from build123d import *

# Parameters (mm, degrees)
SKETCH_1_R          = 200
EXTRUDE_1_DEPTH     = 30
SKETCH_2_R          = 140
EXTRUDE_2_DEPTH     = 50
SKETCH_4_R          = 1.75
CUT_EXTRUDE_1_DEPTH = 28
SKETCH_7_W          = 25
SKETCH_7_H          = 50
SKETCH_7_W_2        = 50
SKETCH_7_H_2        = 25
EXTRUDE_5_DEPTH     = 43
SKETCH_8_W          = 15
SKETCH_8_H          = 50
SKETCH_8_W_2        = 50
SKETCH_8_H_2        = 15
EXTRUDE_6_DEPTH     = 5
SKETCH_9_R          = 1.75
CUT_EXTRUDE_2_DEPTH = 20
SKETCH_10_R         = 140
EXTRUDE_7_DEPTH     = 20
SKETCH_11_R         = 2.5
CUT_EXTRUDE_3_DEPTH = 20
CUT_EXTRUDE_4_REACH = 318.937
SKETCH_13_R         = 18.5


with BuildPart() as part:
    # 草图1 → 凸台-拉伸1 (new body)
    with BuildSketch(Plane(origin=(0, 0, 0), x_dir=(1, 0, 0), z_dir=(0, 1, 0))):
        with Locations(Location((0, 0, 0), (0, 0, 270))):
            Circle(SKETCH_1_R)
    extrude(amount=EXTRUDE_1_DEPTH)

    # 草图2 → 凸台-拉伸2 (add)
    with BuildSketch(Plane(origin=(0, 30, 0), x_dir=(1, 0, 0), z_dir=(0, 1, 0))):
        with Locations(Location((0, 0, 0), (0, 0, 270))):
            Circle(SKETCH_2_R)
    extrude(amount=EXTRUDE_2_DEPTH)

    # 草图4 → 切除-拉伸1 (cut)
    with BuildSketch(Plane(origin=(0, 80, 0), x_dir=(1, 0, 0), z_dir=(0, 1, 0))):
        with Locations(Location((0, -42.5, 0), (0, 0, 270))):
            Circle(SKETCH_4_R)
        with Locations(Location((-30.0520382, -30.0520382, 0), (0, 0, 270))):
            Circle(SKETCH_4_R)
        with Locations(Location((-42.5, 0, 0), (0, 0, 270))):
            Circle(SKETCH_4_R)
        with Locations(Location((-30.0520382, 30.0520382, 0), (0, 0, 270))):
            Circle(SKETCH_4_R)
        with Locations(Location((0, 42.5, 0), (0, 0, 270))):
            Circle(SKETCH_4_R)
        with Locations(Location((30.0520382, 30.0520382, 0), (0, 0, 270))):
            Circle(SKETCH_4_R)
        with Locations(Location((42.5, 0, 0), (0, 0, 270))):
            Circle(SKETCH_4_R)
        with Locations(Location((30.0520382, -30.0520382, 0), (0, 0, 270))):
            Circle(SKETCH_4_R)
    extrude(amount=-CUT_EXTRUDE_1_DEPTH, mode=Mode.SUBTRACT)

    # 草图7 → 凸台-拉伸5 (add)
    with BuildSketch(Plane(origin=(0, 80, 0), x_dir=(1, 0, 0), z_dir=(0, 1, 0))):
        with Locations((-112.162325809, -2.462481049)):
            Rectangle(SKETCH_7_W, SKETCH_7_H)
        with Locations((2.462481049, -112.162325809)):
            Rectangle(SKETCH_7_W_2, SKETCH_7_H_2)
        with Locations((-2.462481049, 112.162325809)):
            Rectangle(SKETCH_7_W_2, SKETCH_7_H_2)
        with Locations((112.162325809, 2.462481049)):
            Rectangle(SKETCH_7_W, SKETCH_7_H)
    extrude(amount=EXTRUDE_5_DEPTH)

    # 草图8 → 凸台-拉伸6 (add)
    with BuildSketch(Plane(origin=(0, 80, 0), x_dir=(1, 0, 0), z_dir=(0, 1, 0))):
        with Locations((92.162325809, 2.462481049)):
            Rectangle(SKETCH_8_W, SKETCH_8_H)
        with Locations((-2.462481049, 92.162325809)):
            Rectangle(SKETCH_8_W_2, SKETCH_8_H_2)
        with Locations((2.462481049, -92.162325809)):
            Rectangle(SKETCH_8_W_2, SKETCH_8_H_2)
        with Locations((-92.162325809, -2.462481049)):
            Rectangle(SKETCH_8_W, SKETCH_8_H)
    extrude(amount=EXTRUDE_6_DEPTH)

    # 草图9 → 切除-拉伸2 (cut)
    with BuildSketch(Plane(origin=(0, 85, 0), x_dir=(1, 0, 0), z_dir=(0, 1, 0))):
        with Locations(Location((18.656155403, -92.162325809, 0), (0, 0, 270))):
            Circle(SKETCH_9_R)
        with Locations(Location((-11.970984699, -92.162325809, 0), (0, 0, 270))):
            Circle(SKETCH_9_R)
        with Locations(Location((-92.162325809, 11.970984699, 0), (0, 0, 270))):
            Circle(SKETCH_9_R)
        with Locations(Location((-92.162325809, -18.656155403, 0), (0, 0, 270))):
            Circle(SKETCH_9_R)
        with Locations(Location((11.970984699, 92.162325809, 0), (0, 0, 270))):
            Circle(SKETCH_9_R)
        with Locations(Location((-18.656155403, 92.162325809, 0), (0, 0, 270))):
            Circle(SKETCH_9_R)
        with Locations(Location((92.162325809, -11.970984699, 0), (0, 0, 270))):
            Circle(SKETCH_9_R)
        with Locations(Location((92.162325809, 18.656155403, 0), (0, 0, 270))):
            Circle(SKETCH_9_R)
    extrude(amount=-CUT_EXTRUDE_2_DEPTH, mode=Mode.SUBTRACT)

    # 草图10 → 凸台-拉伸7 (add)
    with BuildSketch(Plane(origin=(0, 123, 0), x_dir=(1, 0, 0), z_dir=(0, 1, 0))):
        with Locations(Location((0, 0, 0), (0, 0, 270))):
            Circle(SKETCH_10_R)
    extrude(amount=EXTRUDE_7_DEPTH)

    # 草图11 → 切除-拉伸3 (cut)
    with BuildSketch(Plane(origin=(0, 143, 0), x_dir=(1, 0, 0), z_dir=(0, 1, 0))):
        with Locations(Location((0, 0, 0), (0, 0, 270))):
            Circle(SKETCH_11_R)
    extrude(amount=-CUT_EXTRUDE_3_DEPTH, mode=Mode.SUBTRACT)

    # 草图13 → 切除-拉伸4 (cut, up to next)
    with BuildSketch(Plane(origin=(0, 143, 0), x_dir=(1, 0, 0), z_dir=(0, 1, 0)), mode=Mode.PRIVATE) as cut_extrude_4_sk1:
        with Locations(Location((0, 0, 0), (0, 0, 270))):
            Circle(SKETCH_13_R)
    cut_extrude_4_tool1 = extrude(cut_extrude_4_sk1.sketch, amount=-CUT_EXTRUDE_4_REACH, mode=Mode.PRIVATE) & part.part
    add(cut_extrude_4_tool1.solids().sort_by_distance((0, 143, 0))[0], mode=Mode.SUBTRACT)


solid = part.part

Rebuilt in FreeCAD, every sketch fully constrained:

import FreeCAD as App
import Part
import Sketcher

doc = App.newDocument("Part")
body = doc.addObject("PartDesign::Body", "Body")

sketch1 = body.newObject("Sketcher::SketchObject", "Sketch")
sketch1.AttachmentSupport = (doc.getObject("XZ_Plane"), [""])
sketch1.MapMode = "FlatFace"
sketch1.addGeometry(Part.Circle(App.Vector(0, 0, 0), App.Vector(0, 0, 1), 200), False)
sketch1.addConstraint([
    Sketcher.Constraint("Coincident", 0, 3, -1, 1),
    Sketcher.Constraint("Diameter", 0, 400.0),
])
pad1 = body.newObject("PartDesign::Pad", "Pad")
pad1.Profile = sketch1
pad1.Length = 30
pad1.Reversed = True

sketch2 = body.newObject("Sketcher::SketchObject", "Sketch001")
sketch2.AttachmentSupport = (doc.getObject("XZ_Plane"), [""])
sketch2.MapMode = "FlatFace"
sketch2.AttachmentOffset = App.Placement(App.Vector(0, 0, -30), App.Rotation())
sketch2.addGeometry(Part.Circle(App.Vector(0, 0, 0), App.Vector(0, 0, 1), 140), False)
sketch2.addConstraint([
    Sketcher.Constraint("Coincident", 0, 3, -1, 1),
    Sketcher.Constraint("Diameter", 0, 280.0),
])
pad2 = body.newObject("PartDesign::Pad", "Pad001")
pad2.Profile = sketch2
pad2.Length = 50
pad2.Reversed = True

sketch3 = body.newObject("Sketcher::SketchObject", "Sketch002")
sketch3.AttachmentSupport = (doc.getObject("XZ_Plane"), [""])
sketch3.MapMode = "FlatFace"
sketch3.AttachmentOffset = App.Placement(App.Vector(0, 0, -80), App.Rotation())
sketch3.addGeometry([
    Part.Circle(App.Vector(0, 42.5, 0), App.Vector(0, 0, 1), 1.8),
    Part.Circle(App.Vector(-30.1, 30.1, 0), App.Vector(0, 0, 1), 1.8),
    Part.Circle(App.Vector(-42.5, 0, 0), App.Vector(0, 0, 1), 1.8),
    Part.Circle(App.Vector(-30.1, -30.1, 0), App.Vector(0, 0, 1), 1.8),
    Part.Circle(App.Vector(0, -42.5, 0), App.Vector(0, 0, 1), 1.8),
    Part.Circle(App.Vector(30.1, -30.1, 0), App.Vector(0, 0, 1), 1.8),
    Part.Circle(App.Vector(42.5, 0, 0), App.Vector(0, 0, 1), 1.8),
    Part.Circle(App.Vector(30.1, 30.1, 0), App.Vector(0, 0, 1), 1.8),
], False)
sketch3.addConstraint([
    Sketcher.Constraint("Equal", 0, 1),
    Sketcher.Constraint("Equal", 1, 2),
    Sketcher.Constraint("Equal", 2, 3),
    Sketcher.Constraint("Equal", 3, 4),
    Sketcher.Constraint("Equal", 4, 5),
    Sketcher.Constraint("Equal", 5, 6),
    Sketcher.Constraint("Equal", 6, 7),
    Sketcher.Constraint("Symmetric", 0, 3, 4, 3, -1, 1),
    Sketcher.Constraint("Symmetric", 1, 3, 5, 3, -1, 1),
    Sketcher.Constraint("Symmetric", 2, 3, 6, 3, -1, 1),
    Sketcher.Constraint("Symmetric", 3, 3, 7, 3, -1, 1),
    Sketcher.Constraint("Symmetric", 3, 3, 5, 3, -2),
    Sketcher.Constraint("PointOnObject", 0, 3, -2),
    Sketcher.Constraint("PointOnObject", 2, 3, -1),
    Sketcher.Constraint("Diameter", 0, 3.5),
    Sketcher.Constraint("DistanceY", 4, 3, 0, 3, 85.0),
    Sketcher.Constraint("DistanceX", 2, 3, -1, 1, 42.5),
    Sketcher.Constraint("DistanceX", 1, 3, -1, 1, 30.052038),
    Sketcher.Constraint("DistanceY", -1, 1, 1, 3, 30.052038),
])
pocket1 = body.newObject("PartDesign::Pocket", "Pocket")
pocket1.Profile = sketch3
pocket1.Length = 28
pocket1.Reversed = True

sketch4 = body.newObject("Sketcher::SketchObject", "Sketch003")
sketch4.AttachmentSupport = (doc.getObject("XZ_Plane"), [""])
sketch4.MapMode = "FlatFace"
sketch4.AttachmentOffset = App.Placement(App.Vector(0, 0, -80), App.Rotation())
sketch4.addGeometry([
    Part.LineSegment(App.Vector(-125, -23, 0), App.Vector(-125, 27, 0)),
    Part.LineSegment(App.Vector(-125, 27, 0), App.Vector(-100, 27, 0)),
    Part.LineSegment(App.Vector(-100, 27, 0), App.Vector(-100, -23, 0)),
    Part.LineSegment(App.Vector(-100, -23, 0), App.Vector(-125, -23, 0)),
    Part.LineSegment(App.Vector(-23, 100, 0), App.Vector(-23, 125, 0)),
    Part.LineSegment(App.Vector(-23, 125, 0), App.Vector(27, 125, 0)),
    Part.LineSegment(App.Vector(27, 125, 0), App.Vector(27, 100, 0)),
    Part.LineSegment(App.Vector(27, 100, 0), App.Vector(-23, 100, 0)),
    Part.LineSegment(App.Vector(-27, -125, 0), App.Vector(-27, -100, 0)),
    Part.LineSegment(App.Vector(-27, -100, 0), App.Vector(23, -100, 0)),
    Part.LineSegment(App.Vector(23, -100, 0), App.Vector(23, -125, 0)),
    Part.LineSegment(App.Vector(23, -125, 0), App.Vector(-27, -125, 0)),
    Part.LineSegment(App.Vector(100, -27, 0), App.Vector(100, 23, 0)),
    Part.LineSegment(App.Vector(100, 23, 0), App.Vector(125, 23, 0)),
    Part.LineSegment(App.Vector(125, 23, 0), App.Vector(125, -27, 0)),
    Part.LineSegment(App.Vector(125, -27, 0), App.Vector(100, -27, 0)),
], False)
sketch4.addConstraint([
    Sketcher.Constraint("Coincident", 0, 2, 1, 1),
    Sketcher.Constraint("Coincident", 1, 2, 2, 1),
    Sketcher.Constraint("Coincident", 2, 2, 3, 1),
    Sketcher.Constraint("Coincident", 3, 2, 0, 1),
    Sketcher.Constraint("Coincident", 4, 2, 5, 1),
    Sketcher.Constraint("Coincident", 5, 2, 6, 1),
    Sketcher.Constraint("Coincident", 6, 2, 7, 1),
    Sketcher.Constraint("Coincident", 7, 2, 4, 1),
    Sketcher.Constraint("Coincident", 8, 2, 9, 1),
    Sketcher.Constraint("Coincident", 9, 2, 10, 1),
    Sketcher.Constraint("Coincident", 10, 2, 11, 1),
    Sketcher.Constraint("Coincident", 11, 2, 8, 1),
    Sketcher.Constraint("Coincident", 12, 2, 13, 1),
    Sketcher.Constraint("Coincident", 13, 2, 14, 1),
    Sketcher.Constraint("Coincident", 14, 2, 15, 1),
    Sketcher.Constraint("Coincident", 15, 2, 12, 1),
    Sketcher.Constraint("Vertical", 0),
    Sketcher.Constraint("Horizontal", 1),
    Sketcher.Constraint("Vertical", 2),
    Sketcher.Constraint("Horizontal", 3),
    Sketcher.Constraint("Vertical", 4),
    Sketcher.Constraint("Horizontal", 5),
    Sketcher.Constraint("Vertical", 6),
    Sketcher.Constraint("Horizontal", 7),
    Sketcher.Constraint("Vertical", 8),
    Sketcher.Constraint("Horizontal", 9),
    Sketcher.Constraint("Vertical", 10),
    Sketcher.Constraint("Horizontal", 11),
    Sketcher.Constraint("Vertical", 12),
    Sketcher.Constraint("Horizontal", 13),
    Sketcher.Constraint("Vertical", 14),
    Sketcher.Constraint("Horizontal", 15),
    Sketcher.Constraint("Symmetric", 6, 2, 8, 2, -1, 1),
    Sketcher.Constraint("Symmetric", 4, 2, 10, 2, -1, 1),
    Sketcher.Constraint("Symmetric", 2, 2, 12, 2, -1, 1),
    Sketcher.Constraint("Symmetric", 0, 2, 14, 2, -1, 1),
    Sketcher.Constraint("Equal", 11, 0),
    Sketcher.Constraint("Equal", 15, 4),
    Sketcher.Constraint("DistanceX", 1, 1, 1, 2, 25.0),
    Sketcher.Constraint("DistanceX", 5, 1, 5, 2, 50.0),
    Sketcher.Constraint("DistanceY", -1, 1, 0, 2, 27.462481),
    Sketcher.Constraint("DistanceX", 4, 2, -1, 1, 22.537519),
    Sketcher.Constraint("DistanceY", 8, 2, 7, 2, 199.324652),
    Sketcher.Constraint("DistanceX", 0, 2, -1, 1, 124.662326),
])
pad3 = body.newObject("PartDesign::Pad", "Pad002")
pad3.Profile = sketch4
pad3.Length = 43
pad3.Reversed = True

sketch5 = body.newObject("Sketcher::SketchObject", "Sketch004")
sketch5.AttachmentSupport = (doc.getObject("XZ_Plane"), [""])
sketch5.MapMode = "FlatFace"
sketch5.AttachmentOffset = App.Placement(App.Vector(0, 0, -80), App.Rotation())
sketch5.addGeometry([
    Part.LineSegment(App.Vector(85, -27, 0), App.Vector(85, 23, 0)),
    Part.LineSegment(App.Vector(85, 23, 0), App.Vector(100, 23, 0)),
    Part.LineSegment(App.Vector(100, 23, 0), App.Vector(100, -27, 0)),
    Part.LineSegment(App.Vector(100, -27, 0), App.Vector(85, -27, 0)),
    Part.LineSegment(App.Vector(-27, -100, 0), App.Vector(-27, -85, 0)),
    Part.LineSegment(App.Vector(-27, -85, 0), App.Vector(23, -85, 0)),
    Part.LineSegment(App.Vector(23, -85, 0), App.Vector(23, -100, 0)),
    Part.LineSegment(App.Vector(23, -100, 0), App.Vector(-27, -100, 0)),
    Part.LineSegment(App.Vector(-23, 85, 0), App.Vector(-23, 100, 0)),
    Part.LineSegment(App.Vector(-23, 100, 0), App.Vector(27, 100, 0)),
    Part.LineSegment(App.Vector(27, 100, 0), App.Vector(27, 85, 0)),
    Part.LineSegment(App.Vector(27, 85, 0), App.Vector(-23, 85, 0)),
    Part.LineSegment(App.Vector(-100, -23, 0), App.Vector(-100, 27, 0)),
    Part.LineSegment(App.Vector(-100, 27, 0), App.Vector(-85, 27, 0)),
    Part.LineSegment(App.Vector(-85, 27, 0), App.Vector(-85, -23, 0)),
    Part.LineSegment(App.Vector(-85, -23, 0), App.Vector(-100, -23, 0)),
], False)
sketch5.addConstraint([
    Sketcher.Constraint("Coincident", 0, 2, 1, 1),
    Sketcher.Constraint("Coincident", 1, 2, 2, 1),
    Sketcher.Constraint("Coincident", 2, 2, 3, 1),
    Sketcher.Constraint("Coincident", 3, 2, 0, 1),
    Sketcher.Constraint("Coincident", 4, 2, 5, 1),
    Sketcher.Constraint("Coincident", 5, 2, 6, 1),
    Sketcher.Constraint("Coincident", 6, 2, 7, 1),
    Sketcher.Constraint("Coincident", 7, 2, 4, 1),
    Sketcher.Constraint("Coincident", 8, 2, 9, 1),
    Sketcher.Constraint("Coincident", 9, 2, 10, 1),
    Sketcher.Constraint("Coincident", 10, 2, 11, 1),
    Sketcher.Constraint("Coincident", 11, 2, 8, 1),
    Sketcher.Constraint("Coincident", 12, 2, 13, 1),
    Sketcher.Constraint("Coincident", 13, 2, 14, 1),
    Sketcher.Constraint("Coincident", 14, 2, 15, 1),
    Sketcher.Constraint("Coincident", 15, 2, 12, 1),
    Sketcher.Constraint("Vertical", 0),
    Sketcher.Constraint("Horizontal", 1),
    Sketcher.Constraint("Vertical", 2),
    Sketcher.Constraint("Horizontal", 3),
    Sketcher.Constraint("Vertical", 4),
    Sketcher.Constraint("Horizontal", 5),
    Sketcher.Constraint("Vertical", 6),
    Sketcher.Constraint("Horizontal", 7),
    Sketcher.Constraint("Vertical", 8),
    Sketcher.Constraint("Horizontal", 9),
    Sketcher.Constraint("Vertical", 10),
    Sketcher.Constraint("Horizontal", 11),
    Sketcher.Constraint("Vertical", 12),
    Sketcher.Constraint("Horizontal", 13),
    Sketcher.Constraint("Vertical", 14),
    Sketcher.Constraint("Horizontal", 15),
    Sketcher.Constraint("Symmetric", 6, 2, 8, 2, -1, 1),
    Sketcher.Constraint("Symmetric", 4, 2, 10, 2, -1, 1),
    Sketcher.Constraint("Symmetric", 2, 2, 12, 2, -1, 1),
    Sketcher.Constraint("Symmetric", 0, 2, 14, 2, -1, 1),
    Sketcher.Constraint("Equal", 11, 0),
    Sketcher.Constraint("Equal", 15, 4),
    Sketcher.Constraint("DistanceX", 1, 1, 1, 2, 15.0),
    Sketcher.Constraint("DistanceX", 5, 1, 5, 2, 50.0),
    Sketcher.Constraint("DistanceY", -1, 1, 0, 2, 22.537519),
    Sketcher.Constraint("DistanceX", 4, 2, -1, 1, 27.462481),
    Sketcher.Constraint("DistanceY", 4, 2, 8, 2, 184.324652),
    Sketcher.Constraint("DistanceX", -1, 1, 0, 2, 84.662326),
])
pad4 = body.newObject("PartDesign::Pad", "Pad003")
pad4.Profile = sketch5
pad4.Length = 5
pad4.Reversed = True

sketch6 = body.newObject("Sketcher::SketchObject", "Sketch005")
sketch6.AttachmentSupport = (doc.getObject("XZ_Plane"), [""])
sketch6.MapMode = "FlatFace"
sketch6.AttachmentOffset = App.Placement(App.Vector(0, 0, -85), App.Rotation())
sketch6.addGeometry([
    Part.Circle(App.Vector(18.7, 92.2, 0), App.Vector(0, 0, 1), 1.8),
    Part.Circle(App.Vector(-12, 92.2, 0), App.Vector(0, 0, 1), 1.8),
    Part.Circle(App.Vector(-92.2, -12, 0), App.Vector(0, 0, 1), 1.8),
    Part.Circle(App.Vector(-92.2, 18.7, 0), App.Vector(0, 0, 1), 1.8),
    Part.Circle(App.Vector(12, -92.2, 0), App.Vector(0, 0, 1), 1.8),
    Part.Circle(App.Vector(-18.7, -92.2, 0), App.Vector(0, 0, 1), 1.8),
    Part.Circle(App.Vector(92.2, 12, 0), App.Vector(0, 0, 1), 1.8),
    Part.Circle(App.Vector(92.2, -18.7, 0), App.Vector(0, 0, 1), 1.8),
], False)
sketch6.addConstraint([
    Sketcher.Constraint("Equal", 0, 1),
    Sketcher.Constraint("Equal", 1, 2),
    Sketcher.Constraint("Equal", 2, 3),
    Sketcher.Constraint("Equal", 3, 4),
    Sketcher.Constraint("Equal", 4, 5),
    Sketcher.Constraint("Equal", 5, 6),
    Sketcher.Constraint("Equal", 6, 7),
    Sketcher.Constraint("Symmetric", 1, 3, 4, 3, -1, 1),
    Sketcher.Constraint("Symmetric", 0, 3, 5, 3, -1, 1),
    Sketcher.Constraint("Symmetric", 2, 3, 6, 3, -1, 1),
    Sketcher.Constraint("Symmetric", 3, 3, 7, 3, -1, 1),
    Sketcher.Constraint("Horizontal", 0, 3, 1, 3),
    Sketcher.Constraint("Vertical", 2, 3, 3, 3),
    Sketcher.Constraint("Diameter", 0, 3.5),
    Sketcher.Constraint("DistanceX", 1, 3, 0, 3, 30.62714),
    Sketcher.Constraint("DistanceX", 2, 3, 1, 3, 80.191341),
    Sketcher.Constraint("DistanceY", 2, 3, 1, 3, 104.133311),
    Sketcher.Constraint("DistanceY", 2, 3, 3, 3, 30.62714),
    Sketcher.Constraint("DistanceX", 2, 3, 4, 3, 104.133311),
    Sketcher.Constraint("DistanceY", 4, 3, 2, 3, 80.191341),
])
pocket2 = body.newObject("PartDesign::Pocket", "Pocket001")
pocket2.Profile = sketch6
pocket2.Length = 20
pocket2.Reversed = True

sketch7 = body.newObject("Sketcher::SketchObject", "Sketch006")
sketch7.AttachmentSupport = (doc.getObject("XZ_Plane"), [""])
sketch7.MapMode = "FlatFace"
sketch7.AttachmentOffset = App.Placement(App.Vector(0, 0, -123), App.Rotation())
sketch7.addGeometry(Part.Circle(App.Vector(0, 0, 0), App.Vector(0, 0, 1), 140), False)
sketch7.addConstraint([
    Sketcher.Constraint("Coincident", 0, 3, -1, 1),
    Sketcher.Constraint("Diameter", 0, 280.0),
])
pad5 = body.newObject("PartDesign::Pad", "Pad004")
pad5.Profile = sketch7
pad5.Length = 20
pad5.Reversed = True

sketch8 = body.newObject("Sketcher::SketchObject", "Sketch007")
sketch8.AttachmentSupport = (doc.getObject("XZ_Plane"), [""])
sketch8.MapMode = "FlatFace"
sketch8.AttachmentOffset = App.Placement(App.Vector(0, 0, -143), App.Rotation())
sketch8.addGeometry(Part.Circle(App.Vector(0, 0, 0), App.Vector(0, 0, 1), 2.5), False)
sketch8.addConstraint([
    Sketcher.Constraint("Coincident", 0, 3, -1, 1),
    Sketcher.Constraint("Diameter", 0, 5.0),
])
pocket3 = body.newObject("PartDesign::Pocket", "Pocket002")
pocket3.Profile = sketch8
pocket3.Length = 20
pocket3.Reversed = True

sketch9 = body.newObject("Sketcher::SketchObject", "Sketch008")
sketch9.AttachmentSupport = (doc.getObject("XZ_Plane"), [""])
sketch9.MapMode = "FlatFace"
sketch9.AttachmentOffset = App.Placement(App.Vector(0, 0, -143), App.Rotation())
sketch9.addGeometry(Part.Circle(App.Vector(0, 0, 0), App.Vector(0, 0, 1), 18), False)
sketch9.addConstraint([
    Sketcher.Constraint("Coincident", 0, 3, -1, 1),
    Sketcher.Constraint("Diameter", 0, 37.0),
])
pocket4 = body.newObject("PartDesign::Pocket", "Pocket003")
pocket4.Profile = sketch9
pocket4.Type = "UpToFirst"
pocket4.Reversed = True

doc.recompute()
